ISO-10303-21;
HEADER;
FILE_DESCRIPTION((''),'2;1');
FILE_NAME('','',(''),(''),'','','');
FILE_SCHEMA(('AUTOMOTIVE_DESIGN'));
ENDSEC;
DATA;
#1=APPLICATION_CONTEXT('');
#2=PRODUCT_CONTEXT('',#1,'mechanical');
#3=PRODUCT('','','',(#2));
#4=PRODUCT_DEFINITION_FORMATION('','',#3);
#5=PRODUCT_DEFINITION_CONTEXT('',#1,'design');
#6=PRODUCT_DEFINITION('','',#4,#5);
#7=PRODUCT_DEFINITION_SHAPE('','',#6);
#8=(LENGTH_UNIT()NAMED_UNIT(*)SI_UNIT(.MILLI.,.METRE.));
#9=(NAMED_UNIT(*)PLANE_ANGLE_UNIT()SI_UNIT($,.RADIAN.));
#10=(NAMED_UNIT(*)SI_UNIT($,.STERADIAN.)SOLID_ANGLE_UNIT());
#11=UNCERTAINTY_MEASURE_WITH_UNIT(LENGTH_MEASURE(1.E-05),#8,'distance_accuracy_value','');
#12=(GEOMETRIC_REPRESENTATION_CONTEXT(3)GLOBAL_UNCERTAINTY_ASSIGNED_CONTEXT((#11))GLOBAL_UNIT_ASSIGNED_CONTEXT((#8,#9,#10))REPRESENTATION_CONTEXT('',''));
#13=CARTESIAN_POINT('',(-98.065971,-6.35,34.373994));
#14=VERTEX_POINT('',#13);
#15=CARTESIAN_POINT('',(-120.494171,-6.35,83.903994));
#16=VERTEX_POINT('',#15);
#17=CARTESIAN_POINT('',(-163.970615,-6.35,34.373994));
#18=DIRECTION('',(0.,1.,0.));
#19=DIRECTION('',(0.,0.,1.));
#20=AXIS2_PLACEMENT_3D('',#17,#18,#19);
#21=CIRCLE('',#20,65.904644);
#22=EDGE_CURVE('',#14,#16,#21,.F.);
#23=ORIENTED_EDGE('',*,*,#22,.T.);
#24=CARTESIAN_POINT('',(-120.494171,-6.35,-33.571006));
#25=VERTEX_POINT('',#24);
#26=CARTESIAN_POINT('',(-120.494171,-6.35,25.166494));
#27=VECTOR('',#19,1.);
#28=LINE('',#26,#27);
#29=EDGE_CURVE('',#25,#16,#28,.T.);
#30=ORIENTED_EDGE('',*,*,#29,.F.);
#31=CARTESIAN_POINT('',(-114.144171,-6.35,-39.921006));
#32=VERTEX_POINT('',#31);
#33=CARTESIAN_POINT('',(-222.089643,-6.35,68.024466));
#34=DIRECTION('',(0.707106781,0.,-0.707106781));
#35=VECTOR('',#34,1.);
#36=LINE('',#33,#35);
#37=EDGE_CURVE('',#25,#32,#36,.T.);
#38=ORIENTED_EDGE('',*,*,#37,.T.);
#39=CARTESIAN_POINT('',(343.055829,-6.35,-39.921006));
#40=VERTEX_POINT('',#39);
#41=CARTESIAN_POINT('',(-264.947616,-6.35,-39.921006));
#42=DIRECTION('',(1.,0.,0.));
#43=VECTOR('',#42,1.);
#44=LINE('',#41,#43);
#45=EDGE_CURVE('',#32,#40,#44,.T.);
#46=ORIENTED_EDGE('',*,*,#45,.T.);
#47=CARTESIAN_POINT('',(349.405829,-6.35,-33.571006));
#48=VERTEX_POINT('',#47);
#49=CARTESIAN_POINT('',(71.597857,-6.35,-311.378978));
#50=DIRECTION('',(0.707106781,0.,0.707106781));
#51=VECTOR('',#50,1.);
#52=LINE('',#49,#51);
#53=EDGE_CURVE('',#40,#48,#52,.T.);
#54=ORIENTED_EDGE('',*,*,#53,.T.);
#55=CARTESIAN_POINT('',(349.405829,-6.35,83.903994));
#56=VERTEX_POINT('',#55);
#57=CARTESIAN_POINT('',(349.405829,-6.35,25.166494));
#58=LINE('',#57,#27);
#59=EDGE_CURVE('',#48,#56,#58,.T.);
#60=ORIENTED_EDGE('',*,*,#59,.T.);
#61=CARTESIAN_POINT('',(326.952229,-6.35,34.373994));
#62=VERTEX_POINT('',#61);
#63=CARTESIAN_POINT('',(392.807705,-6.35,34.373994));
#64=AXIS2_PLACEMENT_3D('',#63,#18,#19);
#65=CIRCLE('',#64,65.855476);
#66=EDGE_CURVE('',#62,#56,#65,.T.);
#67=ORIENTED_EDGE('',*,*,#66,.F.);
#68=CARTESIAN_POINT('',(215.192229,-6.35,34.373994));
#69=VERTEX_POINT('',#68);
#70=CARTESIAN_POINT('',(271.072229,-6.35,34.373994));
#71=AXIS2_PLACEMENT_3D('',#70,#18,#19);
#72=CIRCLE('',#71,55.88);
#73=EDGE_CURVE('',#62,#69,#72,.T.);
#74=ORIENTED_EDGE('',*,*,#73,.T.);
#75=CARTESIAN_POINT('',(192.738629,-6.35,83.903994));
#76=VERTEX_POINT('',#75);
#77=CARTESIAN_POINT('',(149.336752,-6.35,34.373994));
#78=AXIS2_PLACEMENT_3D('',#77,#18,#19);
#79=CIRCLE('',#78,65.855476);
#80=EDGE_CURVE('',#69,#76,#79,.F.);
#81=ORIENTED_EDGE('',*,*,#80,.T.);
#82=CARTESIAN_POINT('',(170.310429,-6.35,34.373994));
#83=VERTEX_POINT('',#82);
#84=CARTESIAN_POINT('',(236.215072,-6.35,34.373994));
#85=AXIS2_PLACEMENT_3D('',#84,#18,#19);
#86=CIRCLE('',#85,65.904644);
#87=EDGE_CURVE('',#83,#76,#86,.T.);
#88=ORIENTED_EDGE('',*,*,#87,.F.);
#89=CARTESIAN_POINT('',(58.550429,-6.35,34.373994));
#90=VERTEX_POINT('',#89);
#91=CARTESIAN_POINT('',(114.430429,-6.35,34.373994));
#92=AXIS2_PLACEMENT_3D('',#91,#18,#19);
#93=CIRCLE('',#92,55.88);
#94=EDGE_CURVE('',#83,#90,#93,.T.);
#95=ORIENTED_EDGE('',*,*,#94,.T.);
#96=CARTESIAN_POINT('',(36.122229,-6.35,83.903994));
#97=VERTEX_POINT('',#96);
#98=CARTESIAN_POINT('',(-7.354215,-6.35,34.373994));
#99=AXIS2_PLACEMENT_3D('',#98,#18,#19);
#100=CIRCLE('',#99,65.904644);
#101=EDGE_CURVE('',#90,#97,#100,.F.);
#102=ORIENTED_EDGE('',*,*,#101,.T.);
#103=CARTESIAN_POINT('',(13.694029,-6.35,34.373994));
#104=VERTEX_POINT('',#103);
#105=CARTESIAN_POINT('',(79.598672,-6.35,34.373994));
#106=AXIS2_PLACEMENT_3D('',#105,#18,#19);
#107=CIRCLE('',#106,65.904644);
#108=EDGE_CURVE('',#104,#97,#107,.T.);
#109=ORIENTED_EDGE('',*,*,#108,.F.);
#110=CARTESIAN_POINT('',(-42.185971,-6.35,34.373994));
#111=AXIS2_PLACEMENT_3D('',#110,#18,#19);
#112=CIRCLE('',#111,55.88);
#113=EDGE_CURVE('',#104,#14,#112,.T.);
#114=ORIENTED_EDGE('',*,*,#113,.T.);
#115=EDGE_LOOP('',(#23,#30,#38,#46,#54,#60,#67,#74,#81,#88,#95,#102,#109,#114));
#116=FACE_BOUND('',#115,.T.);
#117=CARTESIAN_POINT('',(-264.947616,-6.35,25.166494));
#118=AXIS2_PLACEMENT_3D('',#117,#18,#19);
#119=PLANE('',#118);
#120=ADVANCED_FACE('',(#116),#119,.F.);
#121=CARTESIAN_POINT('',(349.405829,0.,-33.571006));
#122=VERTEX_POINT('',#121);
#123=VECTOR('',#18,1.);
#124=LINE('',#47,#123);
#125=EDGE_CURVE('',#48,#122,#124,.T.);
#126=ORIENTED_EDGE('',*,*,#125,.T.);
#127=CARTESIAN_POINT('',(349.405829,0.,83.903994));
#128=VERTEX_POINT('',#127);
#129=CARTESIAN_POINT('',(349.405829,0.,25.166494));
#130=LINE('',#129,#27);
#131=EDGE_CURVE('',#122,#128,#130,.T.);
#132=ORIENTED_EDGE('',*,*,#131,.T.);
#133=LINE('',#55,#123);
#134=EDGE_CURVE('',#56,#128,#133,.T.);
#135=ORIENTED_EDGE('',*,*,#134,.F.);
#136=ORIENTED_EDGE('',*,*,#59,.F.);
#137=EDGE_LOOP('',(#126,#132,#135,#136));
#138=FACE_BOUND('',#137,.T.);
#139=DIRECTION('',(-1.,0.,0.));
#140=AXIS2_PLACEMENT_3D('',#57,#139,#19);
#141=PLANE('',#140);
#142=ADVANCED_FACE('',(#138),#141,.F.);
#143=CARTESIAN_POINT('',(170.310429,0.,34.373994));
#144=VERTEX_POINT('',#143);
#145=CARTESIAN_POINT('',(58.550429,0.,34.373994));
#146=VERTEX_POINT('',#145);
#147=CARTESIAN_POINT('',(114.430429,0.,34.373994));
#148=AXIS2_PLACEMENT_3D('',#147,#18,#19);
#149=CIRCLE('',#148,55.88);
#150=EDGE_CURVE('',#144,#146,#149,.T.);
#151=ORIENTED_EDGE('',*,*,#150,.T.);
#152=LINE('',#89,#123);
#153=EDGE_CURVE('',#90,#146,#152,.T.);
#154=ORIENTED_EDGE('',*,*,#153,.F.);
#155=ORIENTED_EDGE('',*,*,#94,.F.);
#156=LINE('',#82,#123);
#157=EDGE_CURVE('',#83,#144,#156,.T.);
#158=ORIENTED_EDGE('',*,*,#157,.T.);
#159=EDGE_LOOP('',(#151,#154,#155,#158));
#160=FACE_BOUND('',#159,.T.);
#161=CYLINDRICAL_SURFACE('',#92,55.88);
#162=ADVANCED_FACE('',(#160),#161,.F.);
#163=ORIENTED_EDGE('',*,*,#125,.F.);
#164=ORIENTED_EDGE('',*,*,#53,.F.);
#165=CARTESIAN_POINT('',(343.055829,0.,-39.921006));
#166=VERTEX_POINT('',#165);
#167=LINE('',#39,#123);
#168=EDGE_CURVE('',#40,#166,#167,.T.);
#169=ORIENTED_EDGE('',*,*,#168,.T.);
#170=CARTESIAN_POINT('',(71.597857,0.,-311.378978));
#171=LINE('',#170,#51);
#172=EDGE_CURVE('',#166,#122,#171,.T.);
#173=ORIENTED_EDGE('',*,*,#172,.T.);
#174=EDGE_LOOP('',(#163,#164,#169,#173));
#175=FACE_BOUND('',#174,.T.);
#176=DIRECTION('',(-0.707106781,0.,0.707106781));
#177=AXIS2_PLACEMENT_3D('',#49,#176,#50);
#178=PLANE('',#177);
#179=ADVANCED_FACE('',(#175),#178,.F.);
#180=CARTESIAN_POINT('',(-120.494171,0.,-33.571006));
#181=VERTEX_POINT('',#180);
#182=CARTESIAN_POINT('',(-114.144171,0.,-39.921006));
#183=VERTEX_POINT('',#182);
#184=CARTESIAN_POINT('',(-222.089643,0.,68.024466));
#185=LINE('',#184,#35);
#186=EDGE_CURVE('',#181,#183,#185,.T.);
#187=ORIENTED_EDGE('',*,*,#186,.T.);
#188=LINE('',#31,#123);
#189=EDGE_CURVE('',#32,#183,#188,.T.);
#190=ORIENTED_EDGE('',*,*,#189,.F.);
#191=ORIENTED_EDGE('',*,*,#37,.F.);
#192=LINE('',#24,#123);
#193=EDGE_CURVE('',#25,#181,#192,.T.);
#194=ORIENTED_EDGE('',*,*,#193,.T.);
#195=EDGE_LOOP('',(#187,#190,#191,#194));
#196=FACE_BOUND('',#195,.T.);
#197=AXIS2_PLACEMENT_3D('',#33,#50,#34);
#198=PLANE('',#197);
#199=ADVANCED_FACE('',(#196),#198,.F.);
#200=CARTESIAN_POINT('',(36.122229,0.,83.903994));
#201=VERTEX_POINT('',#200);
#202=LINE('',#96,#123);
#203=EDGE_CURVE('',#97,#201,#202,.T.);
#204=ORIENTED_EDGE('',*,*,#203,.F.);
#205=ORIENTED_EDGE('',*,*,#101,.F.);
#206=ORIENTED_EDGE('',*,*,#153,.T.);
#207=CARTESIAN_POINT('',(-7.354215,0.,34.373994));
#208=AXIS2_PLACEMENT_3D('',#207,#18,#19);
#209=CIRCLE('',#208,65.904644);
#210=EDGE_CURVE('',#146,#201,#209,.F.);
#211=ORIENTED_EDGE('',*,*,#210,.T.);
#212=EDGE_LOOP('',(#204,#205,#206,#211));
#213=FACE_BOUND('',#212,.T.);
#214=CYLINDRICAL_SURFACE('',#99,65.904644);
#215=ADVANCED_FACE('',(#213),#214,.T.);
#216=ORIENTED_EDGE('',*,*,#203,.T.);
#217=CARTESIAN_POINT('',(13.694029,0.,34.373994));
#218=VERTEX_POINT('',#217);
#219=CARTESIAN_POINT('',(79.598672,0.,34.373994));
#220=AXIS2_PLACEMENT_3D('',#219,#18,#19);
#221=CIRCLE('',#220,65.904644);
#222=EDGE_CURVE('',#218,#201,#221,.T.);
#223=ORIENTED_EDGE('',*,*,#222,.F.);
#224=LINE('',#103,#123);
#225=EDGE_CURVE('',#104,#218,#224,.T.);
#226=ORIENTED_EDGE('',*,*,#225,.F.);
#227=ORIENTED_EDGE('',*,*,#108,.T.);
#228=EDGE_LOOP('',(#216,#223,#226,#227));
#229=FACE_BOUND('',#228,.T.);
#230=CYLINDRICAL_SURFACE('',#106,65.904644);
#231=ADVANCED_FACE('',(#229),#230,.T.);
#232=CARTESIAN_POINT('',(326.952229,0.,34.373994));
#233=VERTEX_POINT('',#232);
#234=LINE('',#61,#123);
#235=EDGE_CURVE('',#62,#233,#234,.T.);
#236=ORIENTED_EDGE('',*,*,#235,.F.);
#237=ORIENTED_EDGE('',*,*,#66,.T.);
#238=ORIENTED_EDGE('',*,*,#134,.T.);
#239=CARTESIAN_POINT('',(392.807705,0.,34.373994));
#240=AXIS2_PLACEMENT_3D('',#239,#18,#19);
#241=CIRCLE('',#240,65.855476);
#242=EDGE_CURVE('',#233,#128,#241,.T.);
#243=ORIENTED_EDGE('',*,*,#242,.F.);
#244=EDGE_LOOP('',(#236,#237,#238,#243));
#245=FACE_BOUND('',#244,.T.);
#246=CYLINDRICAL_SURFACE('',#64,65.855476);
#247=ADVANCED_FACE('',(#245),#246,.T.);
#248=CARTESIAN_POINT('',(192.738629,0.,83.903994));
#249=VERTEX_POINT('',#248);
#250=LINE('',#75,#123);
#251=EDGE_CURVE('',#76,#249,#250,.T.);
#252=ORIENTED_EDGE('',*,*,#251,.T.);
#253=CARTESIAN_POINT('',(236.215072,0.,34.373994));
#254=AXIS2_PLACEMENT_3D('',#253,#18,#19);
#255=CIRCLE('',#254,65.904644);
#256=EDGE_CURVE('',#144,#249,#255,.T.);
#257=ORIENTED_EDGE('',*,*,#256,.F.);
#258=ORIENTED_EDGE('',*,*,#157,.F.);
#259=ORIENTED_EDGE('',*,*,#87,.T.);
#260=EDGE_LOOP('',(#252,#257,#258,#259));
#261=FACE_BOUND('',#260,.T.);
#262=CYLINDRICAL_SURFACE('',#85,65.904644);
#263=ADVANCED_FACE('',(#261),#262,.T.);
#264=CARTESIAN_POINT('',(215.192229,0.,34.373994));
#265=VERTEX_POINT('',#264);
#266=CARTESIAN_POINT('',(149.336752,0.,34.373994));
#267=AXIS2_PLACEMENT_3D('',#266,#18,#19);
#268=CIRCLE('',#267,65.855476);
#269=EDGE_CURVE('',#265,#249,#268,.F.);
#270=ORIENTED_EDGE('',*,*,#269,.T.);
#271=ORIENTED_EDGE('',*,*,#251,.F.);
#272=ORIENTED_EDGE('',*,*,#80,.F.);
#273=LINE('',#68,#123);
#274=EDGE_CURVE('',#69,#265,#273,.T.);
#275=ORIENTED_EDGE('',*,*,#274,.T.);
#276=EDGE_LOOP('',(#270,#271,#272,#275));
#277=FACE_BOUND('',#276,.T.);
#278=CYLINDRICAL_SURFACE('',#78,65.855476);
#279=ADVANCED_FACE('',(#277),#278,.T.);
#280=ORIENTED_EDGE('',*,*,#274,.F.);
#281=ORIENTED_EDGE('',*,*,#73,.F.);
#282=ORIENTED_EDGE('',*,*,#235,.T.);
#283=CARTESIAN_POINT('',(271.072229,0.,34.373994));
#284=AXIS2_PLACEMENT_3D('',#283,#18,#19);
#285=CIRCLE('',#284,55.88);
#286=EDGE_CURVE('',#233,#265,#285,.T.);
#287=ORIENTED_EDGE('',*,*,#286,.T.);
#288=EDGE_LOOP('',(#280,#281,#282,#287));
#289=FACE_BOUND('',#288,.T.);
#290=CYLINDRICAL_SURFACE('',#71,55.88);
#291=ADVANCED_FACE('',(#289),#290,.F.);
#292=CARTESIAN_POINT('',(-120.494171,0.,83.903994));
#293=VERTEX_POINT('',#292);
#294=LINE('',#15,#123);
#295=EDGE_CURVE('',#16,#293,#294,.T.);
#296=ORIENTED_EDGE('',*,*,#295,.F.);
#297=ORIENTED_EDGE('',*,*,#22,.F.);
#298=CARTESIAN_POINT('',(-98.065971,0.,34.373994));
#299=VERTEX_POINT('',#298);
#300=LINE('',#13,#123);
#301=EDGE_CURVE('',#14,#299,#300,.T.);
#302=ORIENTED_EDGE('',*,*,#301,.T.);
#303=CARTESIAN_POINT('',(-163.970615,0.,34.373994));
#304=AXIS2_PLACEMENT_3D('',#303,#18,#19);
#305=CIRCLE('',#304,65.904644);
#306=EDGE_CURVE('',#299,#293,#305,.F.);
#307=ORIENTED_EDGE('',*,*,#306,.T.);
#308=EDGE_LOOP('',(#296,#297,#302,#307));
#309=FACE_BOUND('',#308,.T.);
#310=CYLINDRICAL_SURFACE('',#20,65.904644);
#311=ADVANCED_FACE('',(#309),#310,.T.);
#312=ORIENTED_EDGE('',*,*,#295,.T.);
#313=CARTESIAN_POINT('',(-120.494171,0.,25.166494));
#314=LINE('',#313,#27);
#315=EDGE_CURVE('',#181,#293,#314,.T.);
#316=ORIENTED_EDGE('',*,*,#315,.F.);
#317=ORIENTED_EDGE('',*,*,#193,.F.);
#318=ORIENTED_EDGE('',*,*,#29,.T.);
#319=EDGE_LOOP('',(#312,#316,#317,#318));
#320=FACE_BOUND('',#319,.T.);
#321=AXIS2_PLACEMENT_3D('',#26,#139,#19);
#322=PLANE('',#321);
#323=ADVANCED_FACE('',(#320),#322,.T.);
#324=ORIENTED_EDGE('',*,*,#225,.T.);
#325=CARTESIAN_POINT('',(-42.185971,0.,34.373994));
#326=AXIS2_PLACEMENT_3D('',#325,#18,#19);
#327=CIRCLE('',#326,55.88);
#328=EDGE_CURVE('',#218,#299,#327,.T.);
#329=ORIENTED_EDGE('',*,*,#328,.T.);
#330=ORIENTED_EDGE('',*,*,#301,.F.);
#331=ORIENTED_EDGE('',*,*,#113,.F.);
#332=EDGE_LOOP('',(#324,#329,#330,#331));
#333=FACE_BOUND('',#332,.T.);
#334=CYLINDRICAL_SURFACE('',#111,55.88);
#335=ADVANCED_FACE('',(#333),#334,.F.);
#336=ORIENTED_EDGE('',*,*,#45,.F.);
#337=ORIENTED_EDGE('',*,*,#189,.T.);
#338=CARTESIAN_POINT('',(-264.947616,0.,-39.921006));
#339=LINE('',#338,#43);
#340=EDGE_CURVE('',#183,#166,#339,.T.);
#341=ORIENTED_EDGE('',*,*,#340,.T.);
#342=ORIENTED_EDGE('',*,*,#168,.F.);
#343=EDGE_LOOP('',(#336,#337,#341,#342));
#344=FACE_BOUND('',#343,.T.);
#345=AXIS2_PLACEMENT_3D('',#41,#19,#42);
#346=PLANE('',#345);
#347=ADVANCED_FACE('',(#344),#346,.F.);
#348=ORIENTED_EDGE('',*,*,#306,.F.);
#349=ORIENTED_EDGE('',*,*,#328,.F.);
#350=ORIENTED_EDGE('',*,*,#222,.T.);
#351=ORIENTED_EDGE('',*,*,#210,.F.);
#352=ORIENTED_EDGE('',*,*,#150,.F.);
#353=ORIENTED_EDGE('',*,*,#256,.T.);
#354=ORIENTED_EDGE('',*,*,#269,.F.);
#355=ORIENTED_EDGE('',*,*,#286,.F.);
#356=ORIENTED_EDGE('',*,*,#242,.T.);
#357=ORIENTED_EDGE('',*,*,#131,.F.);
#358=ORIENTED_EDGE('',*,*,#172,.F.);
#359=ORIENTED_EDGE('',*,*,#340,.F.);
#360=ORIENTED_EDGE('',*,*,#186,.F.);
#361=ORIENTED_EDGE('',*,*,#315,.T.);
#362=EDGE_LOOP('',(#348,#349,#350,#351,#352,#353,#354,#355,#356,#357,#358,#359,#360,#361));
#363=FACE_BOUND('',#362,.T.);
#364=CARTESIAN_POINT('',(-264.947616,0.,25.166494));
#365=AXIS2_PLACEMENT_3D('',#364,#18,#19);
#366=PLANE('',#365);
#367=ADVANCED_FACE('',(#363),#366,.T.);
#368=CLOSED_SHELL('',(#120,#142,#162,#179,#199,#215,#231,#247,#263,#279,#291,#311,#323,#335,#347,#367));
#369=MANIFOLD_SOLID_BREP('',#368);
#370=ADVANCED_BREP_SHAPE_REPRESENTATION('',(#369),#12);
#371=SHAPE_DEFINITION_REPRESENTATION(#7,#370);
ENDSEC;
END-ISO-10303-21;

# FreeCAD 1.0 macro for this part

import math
import FreeCAD as App
import Part
import Sketcher
Q = App.Units.Quantity

doc = App.newDocument("Part")
body = doc.addObject("PartDesign::Body", "Body")

# Sketch on XZ plane
sketch1 = body.newObject("Sketcher::SketchObject", "Sketch")
sketch1.AttachmentSupport = (doc.getObject("XZ_Plane"), [""])
sketch1.MapMode = "FlatFace"
sketch1.addGeometry([
    Part.ArcOfCircle(Part.Circle(App.Vector(79.598672, 34.373994, 0), App.Vector(0, 0, 1), 65.904644), math.radians(131.276014), math.radians(180)),  # 0
    Part.ArcOfCircle(Part.Circle(App.Vector(-7.354215, 34.373994, 0), App.Vector(0, 0, 1), 65.904644), math.radians(0), math.radians(48.723986)),  # 1
    Part.ArcOfCircle(Part.Circle(App.Vector(114.430429, 34.373994, 0), App.Vector(0, 0, 1), 55.88), math.radians(180), math.radians(360)),  # 2
    Part.ArcOfCircle(Part.Circle(App.Vector(236.215072, 34.373994, 0), App.Vector(0, 0, 1), 65.904644), math.radians(131.276014), math.radians(180)),  # 3
    Part.ArcOfCircle(Part.Circle(App.Vector(149.336752, 34.373994, 0), App.Vector(0, 0, 1), 65.855476), math.radians(0), math.radians(48.772742)),  # 4
    Part.ArcOfCircle(Part.Circle(App.Vector(271.072229, 34.373994, 0), App.Vector(0, 0, 1), 55.88), math.radians(180), math.radians(360)),  # 5
    Part.ArcOfCircle(Part.Circle(App.Vector(392.807705, 34.373994, 0), App.Vector(0, 0, 1), 65.855476), math.radians(131.227258), math.radians(180)),  # 6
    Part.LineSegment(App.Vector(349.405829, 83.903994, 0), App.Vector(349.405829, -33.571006, 0)),  # 7
    Part.LineSegment(App.Vector(349.405829, -33.571006, 0), App.Vector(343.055829, -39.921006, 0)),  # 8
    Part.LineSegment(App.Vector(343.055829, -39.921006, 0), App.Vector(-114.144171, -39.921006, 0)),  # 9
    Part.LineSegment(App.Vector(-114.144171, -39.921006, 0), App.Vector(-120.494171, -33.571006, 0)),  # 10
    Part.LineSegment(App.Vector(-120.494171, -33.571006, 0), App.Vector(-120.494171, 83.903994, 0)),  # 11
    Part.ArcOfCircle(Part.Circle(App.Vector(-163.970615, 34.373994, 0), App.Vector(0, 0, 1), 65.904644), math.radians(0), math.radians(48.723986)),  # 12
    Part.ArcOfCircle(Part.Circle(App.Vector(-42.185971, 34.373994, 0), App.Vector(0, 0, 1), 55.88), math.radians(180), math.radians(360)),  # 13
], False)
sketch1.addConstraint([
    Sketcher.Constraint("Coincident", 0, 1, 1, 2),
    Sketcher.Constraint("Tangent", 1, 1, 2, 1),
    Sketcher.Constraint("Tangent", 2, 2, 3, 2),
    Sketcher.Constraint("Coincident", 3, 1, 4, 2),
    Sketcher.Constraint("Tangent", 4, 1, 5, 1),
    Sketcher.Constraint("Tangent", 5, 2, 6, 2),
    Sketcher.Constraint("Coincident", 6, 1, 7, 1),
    Sketcher.Constraint("Coincident", 7, 2, 8, 1),
    Sketcher.Constraint("Coincident", 8, 2, 9, 1),
    Sketcher.Constraint("Coincident", 9, 2, 10, 1),
    Sketcher.Constraint("Coincident", 10, 2, 11, 1),
    Sketcher.Constraint("Coincident", 11, 2, 12, 2),
    Sketcher.Constraint("Tangent", 12, 1, 13, 1),
    Sketcher.Constraint("Tangent", 13, 2, 0, 2),
    Sketcher.Constraint("Vertical", 7),
    Sketcher.Constraint("Horizontal", 9),
    Sketcher.Constraint("Vertical", 11),
    Sketcher.Constraint("Equal", 0, 1),
    Sketcher.Constraint("Equal", 1, 3),
    Sketcher.Constraint("Equal", 2, 5),
    Sketcher.Constraint("Equal", 4, 6),
    Sketcher.Constraint("Equal", 3, 12),
    Sketcher.Constraint("Equal", 5, 13),
    Sketcher.Constraint("Perpendicular", 8, 10),
    Sketcher.Constraint("Horizontal", 0, 3, 1, 3),
    Sketcher.Constraint("Horizontal", 1, 3, 2, 3),
    Sketcher.Constraint("Horizontal", 2, 3, 3, 3),
    Sketcher.Constraint("Horizontal", 3, 3, 4, 3),
    Sketcher.Constraint("Horizontal", 4, 3, 5, 3),
    Sketcher.Constraint("Horizontal", 5, 3, 6, 3),
    Sketcher.Constraint("Horizontal", 6, 3, 12, 3),
    Sketcher.Constraint("Horizontal", 12, 3, 13, 3),
    Sketcher.Constraint("Horizontal", 0, 1, 3, 1),
    Sketcher.Constraint("Horizontal", 3, 1, 6, 1),
    Sketcher.Constraint("Horizontal", 7, 2, 10, 2),
    Sketcher.Constraint("Horizontal", 6, 1, 11, 2),
    Sketcher.Constraint("Equal", 8, 10),
    Sketcher.Constraint("Radius", 2, Q("2.2 in")),
    Sketcher.Constraint("DistanceX", 9, 2, 9, 1, Q("18 in")),
    Sketcher.Constraint("DistanceY", 7, 2, 7, 1, Q("4.625 in")),
    Sketcher.Constraint("DistanceY", 0, 3, 0, 1, Q("1.95 in")),
    Sketcher.Constraint("DistanceX", 8, 2, 7, 2, Q("0.25 in")),
    Sketcher.Constraint("DistanceX", 0, 3, 3, 3, Q("6.166 in")),
    Sketcher.Constraint("DistanceX", -1, 1, 2, 3, 114.430429),
    Sketcher.Constraint("DistanceY", -1, 1, 0, 3, 34.373994),
])
pad1 = body.newObject("PartDesign::Pad", "Pad")
pad1.Profile = sketch1
pad1.Length = Q("0.25 in")

doc.recompute()
